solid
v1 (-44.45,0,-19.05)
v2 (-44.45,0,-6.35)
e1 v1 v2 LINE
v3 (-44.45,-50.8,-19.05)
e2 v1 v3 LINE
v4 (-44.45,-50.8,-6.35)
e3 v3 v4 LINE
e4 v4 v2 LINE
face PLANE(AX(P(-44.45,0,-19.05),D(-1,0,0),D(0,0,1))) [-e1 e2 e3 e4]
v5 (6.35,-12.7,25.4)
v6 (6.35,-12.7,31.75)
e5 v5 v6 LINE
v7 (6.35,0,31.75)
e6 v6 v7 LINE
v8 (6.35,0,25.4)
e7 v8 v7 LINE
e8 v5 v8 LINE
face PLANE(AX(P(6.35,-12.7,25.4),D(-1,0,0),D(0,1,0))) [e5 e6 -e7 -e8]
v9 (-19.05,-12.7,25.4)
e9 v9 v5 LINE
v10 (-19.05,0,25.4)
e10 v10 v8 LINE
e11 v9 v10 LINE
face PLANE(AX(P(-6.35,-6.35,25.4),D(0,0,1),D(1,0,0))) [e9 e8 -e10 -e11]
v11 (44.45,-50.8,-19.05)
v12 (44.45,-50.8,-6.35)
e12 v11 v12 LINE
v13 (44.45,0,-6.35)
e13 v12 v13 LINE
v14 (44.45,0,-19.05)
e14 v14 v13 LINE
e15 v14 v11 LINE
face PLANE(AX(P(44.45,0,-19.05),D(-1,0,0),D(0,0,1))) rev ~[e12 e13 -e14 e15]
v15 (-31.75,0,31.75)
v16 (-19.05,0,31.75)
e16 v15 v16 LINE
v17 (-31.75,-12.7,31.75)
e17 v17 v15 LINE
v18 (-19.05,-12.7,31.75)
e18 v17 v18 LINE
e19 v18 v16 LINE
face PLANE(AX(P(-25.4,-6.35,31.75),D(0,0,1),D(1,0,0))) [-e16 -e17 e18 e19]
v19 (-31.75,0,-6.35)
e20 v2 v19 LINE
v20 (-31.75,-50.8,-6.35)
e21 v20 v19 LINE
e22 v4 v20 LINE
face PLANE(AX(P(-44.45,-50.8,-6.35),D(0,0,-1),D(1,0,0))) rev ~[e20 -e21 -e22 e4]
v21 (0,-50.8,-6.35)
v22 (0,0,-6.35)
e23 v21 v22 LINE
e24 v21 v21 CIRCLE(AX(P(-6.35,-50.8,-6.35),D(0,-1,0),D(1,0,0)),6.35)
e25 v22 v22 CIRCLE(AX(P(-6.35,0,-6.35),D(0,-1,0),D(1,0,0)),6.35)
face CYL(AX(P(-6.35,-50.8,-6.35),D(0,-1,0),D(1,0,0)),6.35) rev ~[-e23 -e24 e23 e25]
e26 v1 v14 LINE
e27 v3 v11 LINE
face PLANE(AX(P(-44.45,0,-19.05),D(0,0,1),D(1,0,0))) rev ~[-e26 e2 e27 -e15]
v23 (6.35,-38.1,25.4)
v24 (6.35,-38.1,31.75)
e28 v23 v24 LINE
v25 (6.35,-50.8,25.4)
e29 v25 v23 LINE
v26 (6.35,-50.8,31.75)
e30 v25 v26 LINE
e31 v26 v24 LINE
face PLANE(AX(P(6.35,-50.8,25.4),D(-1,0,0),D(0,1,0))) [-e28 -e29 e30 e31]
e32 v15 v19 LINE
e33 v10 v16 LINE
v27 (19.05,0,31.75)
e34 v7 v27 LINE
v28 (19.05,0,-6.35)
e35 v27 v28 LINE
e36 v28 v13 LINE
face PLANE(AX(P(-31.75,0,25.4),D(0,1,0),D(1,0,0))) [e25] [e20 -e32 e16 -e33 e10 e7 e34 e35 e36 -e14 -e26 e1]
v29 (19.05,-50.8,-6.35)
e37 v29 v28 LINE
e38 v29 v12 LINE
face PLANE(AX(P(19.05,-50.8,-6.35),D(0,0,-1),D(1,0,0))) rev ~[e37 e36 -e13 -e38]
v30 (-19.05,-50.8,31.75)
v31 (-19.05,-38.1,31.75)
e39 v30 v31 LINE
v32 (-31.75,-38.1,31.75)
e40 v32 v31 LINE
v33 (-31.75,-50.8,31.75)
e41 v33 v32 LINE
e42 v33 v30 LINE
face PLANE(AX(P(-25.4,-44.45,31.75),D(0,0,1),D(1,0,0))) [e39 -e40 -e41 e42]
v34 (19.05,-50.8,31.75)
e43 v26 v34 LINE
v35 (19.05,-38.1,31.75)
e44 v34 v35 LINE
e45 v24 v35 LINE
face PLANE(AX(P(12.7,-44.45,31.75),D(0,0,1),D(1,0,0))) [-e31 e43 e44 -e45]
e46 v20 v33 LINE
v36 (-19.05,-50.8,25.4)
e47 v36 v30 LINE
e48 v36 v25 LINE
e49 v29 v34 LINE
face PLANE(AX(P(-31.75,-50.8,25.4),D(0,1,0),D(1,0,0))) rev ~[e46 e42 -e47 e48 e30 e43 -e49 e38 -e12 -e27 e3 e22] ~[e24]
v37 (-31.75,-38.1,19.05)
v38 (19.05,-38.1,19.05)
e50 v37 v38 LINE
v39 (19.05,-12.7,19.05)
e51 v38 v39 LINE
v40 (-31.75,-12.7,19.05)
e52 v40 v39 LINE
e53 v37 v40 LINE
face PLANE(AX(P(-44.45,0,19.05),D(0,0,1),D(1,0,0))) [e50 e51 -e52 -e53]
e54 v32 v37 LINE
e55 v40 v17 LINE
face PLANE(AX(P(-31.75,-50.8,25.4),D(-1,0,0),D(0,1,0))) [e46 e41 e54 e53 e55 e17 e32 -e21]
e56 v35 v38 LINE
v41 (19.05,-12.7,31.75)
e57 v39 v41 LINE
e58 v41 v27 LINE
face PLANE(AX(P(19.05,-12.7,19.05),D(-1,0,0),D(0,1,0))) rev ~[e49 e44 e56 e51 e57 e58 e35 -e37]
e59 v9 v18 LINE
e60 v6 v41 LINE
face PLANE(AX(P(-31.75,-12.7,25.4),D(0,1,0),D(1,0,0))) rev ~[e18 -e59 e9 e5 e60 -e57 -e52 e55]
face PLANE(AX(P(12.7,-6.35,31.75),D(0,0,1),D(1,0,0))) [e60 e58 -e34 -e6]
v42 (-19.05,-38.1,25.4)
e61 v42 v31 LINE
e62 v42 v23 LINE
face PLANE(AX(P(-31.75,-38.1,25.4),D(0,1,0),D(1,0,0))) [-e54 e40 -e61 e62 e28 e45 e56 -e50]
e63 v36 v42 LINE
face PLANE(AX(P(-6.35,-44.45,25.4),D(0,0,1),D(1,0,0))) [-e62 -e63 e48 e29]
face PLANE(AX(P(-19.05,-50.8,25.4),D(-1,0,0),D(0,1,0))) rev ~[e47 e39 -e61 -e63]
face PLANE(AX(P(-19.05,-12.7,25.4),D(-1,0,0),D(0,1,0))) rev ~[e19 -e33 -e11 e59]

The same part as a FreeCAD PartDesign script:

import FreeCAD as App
import Part
import Sketcher
Q = App.Units.Quantity


def add_polygon(sketch, points):
    """Adds a closed chain of lines whose ends are joined by coincident constraints."""
    first, n = sketch.GeometryCount, len(points)
    for a, b in zip(points, points[1:] + points[:1]):
        sketch.addGeometry(Part.LineSegment(App.Vector(*a, 0), App.Vector(*b, 0)), False)
    for i in range(n):
        sketch.addConstraint(Sketcher.Constraint("Coincident", first + i, 2, first + (i + 1) % n, 1))

doc = App.newDocument("Part")
params = doc.addObject("Spreadsheet::Sheet", "Params")
for row, (alias, value) in enumerate([
    ("sketch1_width", "3.5 in"),
    ("sketch1_height", "1.5 in"),
    ("pad1_length", "2 in"),
    ("sketch2_height", "1 in"),
    ("sketch2_width", "0.5 in"),
    ("sketch3_width", "1 in"),
    ("sketch4_width", "2 in"),
    ("sketch4_height", "0.5 in"),
    ("pad2_length", "0.25 in"),
    ("sketch5_width", "0.5 in"),
    ("pad3_length", "0.25 in"),
    ("sketch6_width", "0.5 in"),
    ("pad4_length", "0.25 in"),
    ("sketch7_diameter", "0.5 in"),
], start=1):
    params.set(f"A{row}", alias)
    params.set(f"B{row}", "=" + value)
    params.setAlias(f"B{row}", alias)

body = doc.addObject("PartDesign::Body", "Body")

sketch1 = body.newObject("Sketcher::SketchObject", "Sketch")
sketch1.AttachmentSupport = (doc.getObject("XZ_Plane"), [""])
sketch1.MapMode = "FlatFace"
add_polygon(sketch1, [(-44, 19), (-44, -19), (44, -19), (44, 19)])
sketch1.addConstraint([
    Sketcher.Constraint("Vertical", 0),
    Sketcher.Constraint("Horizontal", 1),
    Sketcher.Constraint("Vertical", 2),
    Sketcher.Constraint("Horizontal", 3),
    Sketcher.Constraint("Symmetric", 0, 2, 2, 2, -1, 1),
    Sketcher.Constraint("DistanceX", 1, 1, 1, 2, Q("3.5 in")),
    Sketcher.Constraint("DistanceY", 0, 2, 0, 1, Q("1.5 in")),
])
sketch1.setExpression("Constraints[9]", "Params.sketch1_width")
sketch1.setExpression("Constraints[10]", "Params.sketch1_height")
pad1 = body.newObject("PartDesign::Pad", "Pad")
pad1.Profile = sketch1
pad1.setExpression("Length", "Params.pad1_length")

sketch2 = body.newObject("Sketcher::SketchObject", "Sketch001")
sketch2.AttachmentSupport = (doc.getObject("XZ_Plane"), [""])
sketch2.MapMode = "FlatFace"
sketch2.AttachmentOffset = App.Placement(App.Vector(0, 0, 2 * 25.4), App.Rotation())
add_polygon(sketch2, [(-44, 19), (-44, -6), (-32, -6), (-32, 19)])
sketch2.addConstraint([
    Sketcher.Constraint("Vertical", 0),
    Sketcher.Constraint("Horizontal", 1),
    Sketcher.Constraint("Vertical", 2),
    Sketcher.Constraint("Horizontal", 3),
    Sketcher.Constraint("DistanceY", 0, 2, 0, 1, Q("1 in")),
    Sketcher.Constraint("DistanceX", 1, 1, 1, 2, Q("0.5 in")),
    Sketcher.Constraint("DistanceX", 0, 2, -1, 1, Q("1.75 in")),
    Sketcher.Constraint("DistanceY", 0, 2, -1, 1, Q("0.25 in")),
])
sketch2.setExpression("Constraints[8]", "Params.sketch2_height")
sketch2.setExpression("Constraints[9]", "Params.sketch2_width")
pocket1 = body.newObject("PartDesign::Pocket", "Pocket")
pocket1.Profile = sketch2
pocket1.Type = "ThroughAll"

sketch3 = body.newObject("Sketcher::SketchObject", "Sketch002")
sketch3.AttachmentSupport = (doc.getObject("XZ_Plane"), [""])
sketch3.MapMode = "FlatFace"
sketch3.AttachmentOffset = App.Placement(App.Vector(0, 0, 2 * 25.4), App.Rotation())
add_polygon(sketch3, [(19, 19), (19, -6), (44, -6), (44, 19)])
sketch3.addConstraint([
    Sketcher.Constraint("Vertical", 0),
    Sketcher.Constraint("Horizontal", 1),
    Sketcher.Constraint("Vertical", 2),
    Sketcher.Constraint("Horizontal", 3),
    Sketcher.Constraint("Equal", 3, 0),
    Sketcher.Constraint("DistanceX", 1, 1, 1, 2, Q("1 in")),
    Sketcher.Constraint("DistanceX", -1, 1, 0, 2, Q("0.75 in")),
    Sketcher.Constraint("DistanceY", 0, 2, -1, 1, Q("0.25 in")),
])
sketch3.setExpression("Constraints[9]", "Params.sketch3_width")
pocket2 = body.newObject("PartDesign::Pocket", "Pocket001")
pocket2.Profile = sketch3
pocket2.Type = "ThroughAll"

sketch4 = body.newObject("Sketcher::SketchObject", "Sketch003")
sketch4.AttachmentSupport = (doc.getObject("XY_Plane"), [""])
sketch4.MapMode = "FlatFace"
sketch4.AttachmentOffset = App.Placement(App.Vector(0, 0, 0.75 * 25.4), App.Rotation())
add_polygon(sketch4, [(-32, 0), (-32, -13), (19, -13), (19, 0)])
add_polygon(sketch4, [(-32, -38), (-32, -51), (19, -51), (19, -38)])
sketch4.addConstraint([
    Sketcher.Constraint("Vertical", 0),
    Sketcher.Constraint("Horizontal", 1),
    Sketcher.Constraint("Vertical", 2),
    Sketcher.Constraint("Horizontal", 3),
    Sketcher.Constraint("Vertical", 4),
    Sketcher.Constraint("Horizontal", 5),
    Sketcher.Constraint("Vertical", 6),
    Sketcher.Constraint("Horizontal", 7),
    Sketcher.Constraint("PointOnObject", 2, 2, -1),
    Sketcher.Constraint("Vertical", 3, 2, 4, 2),
    Sketcher.Constraint("Vertical", 2, 2, 5, 2),
    Sketcher.Constraint("Equal", 2, 4),
    Sketcher.Constraint("DistanceX", 1, 1, 1, 2, Q("2 in")),
    Sketcher.Constraint("DistanceY", 0, 2, 0, 1, Q("0.5 in")),
    Sketcher.Constraint("DistanceY", 4, 2, -1, 1, Q("2 in")),
    Sketcher.Constraint("DistanceX", 0, 2, -1, 1, Q("1.25 in")),
])
sketch4.setExpression("Constraints[20]", "Params.sketch4_width")
sketch4.setExpression("Constraints[21]", "Params.sketch4_height")
pad2 = body.newObject("PartDesign::Pad", "Pad001")
pad2.Profile = sketch4
pad2.setExpression("Length", "Params.pad2_length")

sketch5 = body.newObject("Sketcher::SketchObject", "Sketch004")
sketch5.AttachmentSupport = (doc.getObject("XY_Plane"), [""])
sketch5.MapMode = "FlatFace"
sketch5.AttachmentOffset = App.Placement(App.Vector(0, 0, 1 * 25.4), App.Rotation())
add_polygon(sketch5, [(-32, 0), (-32, -13), (-19, -13), (-19, 0)])
add_polygon(sketch5, [(6, 0), (6, -13), (19, -13), (19, 0)])
sketch5.addConstraint([
    Sketcher.Constraint("Vertical", 0),
    Sketcher.Constraint("Horizontal", 1),
    Sketcher.Constraint("Vertical", 2),
    Sketcher.Constraint("Horizontal", 3),
    Sketcher.Constraint("Vertical", 4),
    Sketcher.Constraint("Horizontal", 5),
    Sketcher.Constraint("Vertical", 6),
    Sketcher.Constraint("Horizontal", 7),
    Sketcher.Constraint("Symmetric", 2, 2, 6, 2, -1, 1),
    Sketcher.Constraint("PointOnObject", 2, 2, -1),
    Sketcher.Constraint("Horizontal", 1, 2, 4, 2),
    Sketcher.Constraint("Equal", 3, 5),
    Sketcher.Constraint("Equal", 7, 0),
    Sketcher.Constraint("DistanceX", 1, 1, 1, 2, Q("0.5 in")),
    Sketcher.Constraint("DistanceX", 1, 2, 4, 2, Q("1 in")),
])
sketch5.setExpression("Constraints[21]", "Params.sketch5_width")
pad3 = body.newObject("PartDesign::Pad", "Pad002")
pad3.Profile = sketch5
pad3.setExpression("Length", "Params.pad3_length")

sketch6 = body.newObject("Sketcher::SketchObject", "Sketch005")
sketch6.AttachmentSupport = (doc.getObject("XY_Plane"), [""])
sketch6.MapMode = "FlatFace"
sketch6.AttachmentOffset = App.Placement(App.Vector(0, 0, 1 * 25.4), App.Rotation())
add_polygon(sketch6, [(-32, -38), (-32, -51), (-19, -51), (-19, -38)])
add_polygon(sketch6, [(6, -38), (6, -51), (19, -51), (19, -38)])
sketch6.addConstraint([
    Sketcher.Constraint("Vertical", 0),
    Sketcher.Constraint("Horizontal", 1),
    Sketcher.Constraint("Vertical", 2),
    Sketcher.Constraint("Horizontal", 3),
    Sketcher.Constraint("Vertical", 4),
    Sketcher.Constraint("Horizontal", 5),
    Sketcher.Constraint("Vertical", 6),
    Sketcher.Constraint("Horizontal", 7),
    Sketcher.Constraint("Symmetric", 1, 2, 5, 2, -2),
    Sketcher.Constraint("Horizontal", 3, 2, 6, 2),
    Sketcher.Constraint("Equal", 3, 5),
    Sketcher.Constraint("Equal", 7, 0),
    Sketcher.Constraint("DistanceX", 1, 1, 1, 2, Q("0.5 in")),
    Sketcher.Constraint("DistanceY", 0, 2, -1, 1, Q("2 in")),
    Sketcher.Constraint("DistanceX", 1, 2, 4, 2, Q("1 in")),
])
sketch6.setExpression("Constraints[20]", "Params.sketch6_width")
pad4 = body.newObject("PartDesign::Pad", "Pad003")
pad4.Profile = sketch6
pad4.setExpression("Length", "Params.pad4_length")

sketch7 = body.newObject("Sketcher::SketchObject", "Sketch006")
sketch7.AttachmentSupport = (doc.getObject("XZ_Plane"), [""])
sketch7.MapMode = "FlatFace"
sketch7.AttachmentOffset = App.Placement(App.Vector(0, 0, 2 * 25.4), App.Rotation())
sketch7.addGeometry(Part.Circle(App.Vector(-6, -6, 0), App.Vector(0, 0, 1), 6), False)
sketch7.addConstraint([
    Sketcher.Constraint("Diameter", 0, Q("0.5 in")),
    Sketcher.Constraint("DistanceX", 0, 3, -1, 1, Q("0.25 in")),
    Sketcher.Constraint("DistanceY", 0, 3, -1, 1, Q("0.25 in")),
])
sketch7.setExpression("Constraints[0]", "Params.sketch7_diameter")
pocket3 = body.newObject("PartDesign::Pocket", "Pocket002")
pocket3.Profile = sketch7
pocket3.Type = "ThroughAll"

doc.recompute()
